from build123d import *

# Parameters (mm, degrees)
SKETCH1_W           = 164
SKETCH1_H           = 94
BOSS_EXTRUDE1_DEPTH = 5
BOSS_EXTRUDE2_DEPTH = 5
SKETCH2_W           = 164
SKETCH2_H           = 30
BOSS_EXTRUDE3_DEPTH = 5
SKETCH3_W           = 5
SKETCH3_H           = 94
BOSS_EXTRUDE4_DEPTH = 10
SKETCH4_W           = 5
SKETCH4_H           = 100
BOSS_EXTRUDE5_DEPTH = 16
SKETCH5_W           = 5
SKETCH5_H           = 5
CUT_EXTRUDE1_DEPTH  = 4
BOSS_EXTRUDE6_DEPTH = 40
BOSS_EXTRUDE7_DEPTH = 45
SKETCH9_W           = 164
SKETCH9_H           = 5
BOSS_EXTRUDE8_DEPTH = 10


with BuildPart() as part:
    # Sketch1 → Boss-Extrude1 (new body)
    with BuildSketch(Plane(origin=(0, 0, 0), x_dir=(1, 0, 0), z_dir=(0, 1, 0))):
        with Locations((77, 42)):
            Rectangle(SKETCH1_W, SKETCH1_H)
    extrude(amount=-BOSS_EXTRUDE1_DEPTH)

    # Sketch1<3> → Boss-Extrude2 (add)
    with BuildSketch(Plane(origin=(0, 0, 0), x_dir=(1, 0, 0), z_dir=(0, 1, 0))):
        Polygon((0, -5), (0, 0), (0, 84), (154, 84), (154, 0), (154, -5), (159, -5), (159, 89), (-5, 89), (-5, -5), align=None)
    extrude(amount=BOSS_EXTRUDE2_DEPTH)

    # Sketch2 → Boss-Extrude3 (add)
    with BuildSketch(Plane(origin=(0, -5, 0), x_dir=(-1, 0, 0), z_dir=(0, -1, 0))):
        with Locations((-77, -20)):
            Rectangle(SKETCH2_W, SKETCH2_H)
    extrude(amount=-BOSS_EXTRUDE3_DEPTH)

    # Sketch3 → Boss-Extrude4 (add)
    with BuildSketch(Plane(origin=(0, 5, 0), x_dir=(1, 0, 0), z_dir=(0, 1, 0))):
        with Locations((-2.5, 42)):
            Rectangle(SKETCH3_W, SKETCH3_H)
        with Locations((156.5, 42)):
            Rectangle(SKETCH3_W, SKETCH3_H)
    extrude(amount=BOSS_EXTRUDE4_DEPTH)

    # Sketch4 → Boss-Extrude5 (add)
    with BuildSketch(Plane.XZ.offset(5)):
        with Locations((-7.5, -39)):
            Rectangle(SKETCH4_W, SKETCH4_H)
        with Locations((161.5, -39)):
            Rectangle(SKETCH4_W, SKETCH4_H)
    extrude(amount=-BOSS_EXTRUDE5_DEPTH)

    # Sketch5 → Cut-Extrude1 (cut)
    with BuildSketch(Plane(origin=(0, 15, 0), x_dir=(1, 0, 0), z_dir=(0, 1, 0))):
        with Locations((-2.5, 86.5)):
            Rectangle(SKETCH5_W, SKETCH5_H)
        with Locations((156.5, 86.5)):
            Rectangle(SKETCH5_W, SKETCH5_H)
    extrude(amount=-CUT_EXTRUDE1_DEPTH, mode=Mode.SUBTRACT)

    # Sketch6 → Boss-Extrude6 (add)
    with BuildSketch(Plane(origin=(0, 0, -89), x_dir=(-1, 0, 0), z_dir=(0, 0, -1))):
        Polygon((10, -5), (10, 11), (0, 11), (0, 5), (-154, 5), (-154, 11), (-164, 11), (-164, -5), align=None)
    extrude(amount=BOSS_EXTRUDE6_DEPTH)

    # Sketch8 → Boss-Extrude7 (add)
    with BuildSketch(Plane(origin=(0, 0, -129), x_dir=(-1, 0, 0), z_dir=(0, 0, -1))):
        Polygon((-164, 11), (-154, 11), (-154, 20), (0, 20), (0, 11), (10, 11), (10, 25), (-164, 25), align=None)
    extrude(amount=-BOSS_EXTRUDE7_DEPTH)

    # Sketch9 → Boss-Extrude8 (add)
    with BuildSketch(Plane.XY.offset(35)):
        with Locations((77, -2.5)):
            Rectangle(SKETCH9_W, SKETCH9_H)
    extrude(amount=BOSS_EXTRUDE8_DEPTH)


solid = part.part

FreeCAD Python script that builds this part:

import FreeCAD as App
import Part
import Sketcher
Q = App.Units.Quantity


def add_polygon(sketch, points):
    """Adds a closed chain of lines whose ends are joined by coincident constraints."""
    first, n = sketch.GeometryCount, len(points)
    for a, b in zip(points, points[1:] + points[:1]):
        sketch.addGeometry(Part.LineSegment(App.Vector(*a, 0), App.Vector(*b, 0)), False)
    for i in range(n):
        sketch.addConstraint(Sketcher.Constraint("Coincident", first + i, 2, first + (i + 1) % n, 1))

doc = App.newDocument("Part")
body = doc.addObject("PartDesign::Body", "Body")

# Sketch on XZ plane
sketch1 = body.newObject("Sketcher::SketchObject", "Sketch")
sketch1.AttachmentSupport = (doc.getObject("XZ_Plane"), [""])
sketch1.MapMode = "FlatFace"
add_polygon(sketch1, [(-5, -89), (-5, 5), (159, 5), (159, -89)])  # lines 0-3
sketch1.addConstraint([
    Sketcher.Constraint("Vertical", 0),
    Sketcher.Constraint("Horizontal", 1),
    Sketcher.Constraint("Vertical", 2),
    Sketcher.Constraint("Horizontal", 3),
    Sketcher.Constraint("DistanceX", 1, 1, 1, 2, Q("164 mm")),
    Sketcher.Constraint("DistanceY", 0, 1, 0, 2, Q("94 mm")),
    Sketcher.Constraint("DistanceX", 0, 2, -1, 1, Q("5 mm")),
    Sketcher.Constraint("DistanceY", -1, 1, 0, 2, Q("5 mm")),
])
pad1 = body.newObject("PartDesign::Pad", "Pad")
pad1.Profile = sketch1
pad1.Length = 5

# Sketch on XZ plane
sketch2 = body.newObject("Sketcher::SketchObject", "Sketch001")
sketch2.AttachmentSupport = (doc.getObject("XZ_Plane"), [""])
sketch2.MapMode = "FlatFace"
add_polygon(sketch2, [(0, 5), (0, -84), (154, -84), (154, 5), (159, 5), (159, -89), (-5, -89), (-5, 5)])  # lines 0-7
sketch2.addConstraint([
    Sketcher.Constraint("Vertical", 0),
    Sketcher.Constraint("Horizontal", 1),
    Sketcher.Constraint("Vertical", 2),
    Sketcher.Constraint("Horizontal", 3),
    Sketcher.Constraint("Vertical", 4),
    Sketcher.Constraint("Horizontal", 5),
    Sketcher.Constraint("Vertical", 6),
    Sketcher.Constraint("Horizontal", 7),
    Sketcher.Constraint("PointOnObject", 0, 2, -2),
    Sketcher.Constraint("Horizontal", 3, 2, 6, 2),
    Sketcher.Constraint("Equal", 3, 7),
    Sketcher.Constraint("DistanceX", 1, 1, 1, 2, Q("154 mm")),
    Sketcher.Constraint("DistanceX", 3, 1, 3, 2, Q("5 mm")),
    Sketcher.Constraint("DistanceY", 0, 2, 0, 1, Q("89 mm")),
    Sketcher.Constraint("DistanceY", 4, 2, 4, 1, Q("94 mm")),
    Sketcher.Constraint("DistanceY", 0, 2, -1, 1, Q("84 mm")),
])
pad2 = body.newObject("PartDesign::Pad", "Pad001")
pad2.Profile = sketch2
pad2.Length = 5
pad2.Reversed = True

# Sketch on XZ plane
sketch3 = body.newObject("Sketcher::SketchObject", "Sketch002")
sketch3.AttachmentSupport = (doc.getObject("XZ_Plane"), [""])
sketch3.MapMode = "FlatFace"
sketch3.AttachmentOffset = App.Placement(App.Vector(0, 0, 5), App.Rotation())
add_polygon(sketch3, [(159, 5), (159, 35), (-5, 35), (-5, 5)])  # lines 0-3
sketch3.addConstraint([
    Sketcher.Constraint("Vertical", 0),
    Sketcher.Constraint("Horizontal", 1),
    Sketcher.Constraint("Vertical", 2),
    Sketcher.Constraint("Horizontal", 3),
    Sketcher.Constraint("DistanceX", 1, 2, 1, 1, Q("164 mm")),
    Sketcher.Constraint("DistanceY", 0, 1, 0, 2, Q("30 mm")),
    Sketcher.Constraint("DistanceX", -1, 1, 0, 2, Q("159 mm")),
    Sketcher.Constraint("DistanceY", -1, 1, 0, 2, Q("35 mm")),
])
pad3 = body.newObject("PartDesign::Pad", "Pad002")
pad3.Profile = sketch3
pad3.Length = 5
pad3.Reversed = True

# Sketch on XZ plane
sketch4 = body.newObject("Sketcher::SketchObject", "Sketch003")
sketch4.AttachmentSupport = (doc.getObject("XZ_Plane"), [""])
sketch4.MapMode = "FlatFace"
sketch4.AttachmentOffset = App.Placement(App.Vector(0, 0, -5), App.Rotation())
add_polygon(sketch4, [(-5, -89), (-5, 5), (0, 5), (0, -89)])  # lines 0-3
add_polygon(sketch4, [(154, -89), (154, 5), (159, 5), (159, -89)])  # lines 4-7
sketch4.addConstraint([
    Sketcher.Constraint("Vertical", 0),
    Sketcher.Constraint("Horizontal", 1),
    Sketcher.Constraint("Vertical", 2),
    Sketcher.Constraint("Horizontal", 3),
    Sketcher.Constraint("Vertical", 4),
    Sketcher.Constraint("Horizontal", 5),
    Sketcher.Constraint("Vertical", 6),
    Sketcher.Constraint("Horizontal", 7),
    Sketcher.Constraint("PointOnObject", 1, 2, -2),
    Sketcher.Constraint("Horizontal", 1, 2, 4, 2),
    Sketcher.Constraint("Horizontal", 3, 2, 6, 2),
    Sketcher.Constraint("Equal", 3, 5),
    Sketcher.Constraint("DistanceX", 1, 1, 1, 2, Q("5 mm")),
    Sketcher.Constraint("DistanceY", 0, 1, 0, 2, Q("94 mm")),
    Sketcher.Constraint("DistanceY", -1, 1, 0, 2, Q("5 mm")),
    Sketcher.Constraint("DistanceX", -1, 1, 4, 2, Q("154 mm")),
])
pad4 = body.newObject("PartDesign::Pad", "Pad003")
pad4.Profile = sketch4
pad4.Length = 10
pad4.Reversed = True

# Sketch on XZ plane
sketch5 = body.newObject("Sketcher::SketchObject", "Sketch004")
sketch5.AttachmentSupport = (doc.getObject("XZ_Plane"), [""])
sketch5.MapMode = "FlatFace"
sketch5.AttachmentOffset = App.Placement(App.Vector(0, 0, 5), App.Rotation())
add_polygon(sketch5, [(-10, 11), (-10, -89), (-5, -89), (-5, 11)])  # lines 0-3
add_polygon(sketch5, [(159, 11), (159, -89), (164, -89), (164, 11)])  # lines 4-7
sketch5.addConstraint([
    Sketcher.Constraint("Vertical", 0),
    Sketcher.Constraint("Horizontal", 1),
    Sketcher.Constraint("Vertical", 2),
    Sketcher.Constraint("Horizontal", 3),
    Sketcher.Constraint("Vertical", 4),
    Sketcher.Constraint("Horizontal", 5),
    Sketcher.Constraint("Vertical", 6),
    Sketcher.Constraint("Horizontal", 7),
    Sketcher.Constraint("Horizontal", 1, 2, 4, 2),
    Sketcher.Constraint("Horizontal", 3, 2, 6, 2),
    Sketcher.Constraint("Equal", 3, 5),
    Sketcher.Constraint("DistanceX", 1, 1, 1, 2, Q("5 mm")),
    Sketcher.Constraint("DistanceY", 0, 2, 0, 1, Q("100 mm")),
    Sketcher.Constraint("DistanceX", 0, 2, -1, 1, Q("10 mm")),
    Sketcher.Constraint("DistanceY", 0, 2, -1, 1, Q("89 mm")),
    Sketcher.Constraint("DistanceX", -1, 1, 4, 2, Q("159 mm")),
])
pad5 = body.newObject("PartDesign::Pad", "Pad004")
pad5.Profile = sketch5
pad5.Length = 16
pad5.Reversed = True

# Sketch on XZ plane
sketch6 = body.newObject("Sketcher::SketchObject", "Sketch005")
sketch6.AttachmentSupport = (doc.getObject("XZ_Plane"), [""])
sketch6.MapMode = "FlatFace"
sketch6.AttachmentOffset = App.Placement(App.Vector(0, 0, -15), App.Rotation())
add_polygon(sketch6, [(-5, -89), (-5, -84), (0, -84), (0, -89)])  # lines 0-3
add_polygon(sketch6, [(154, -89), (154, -84), (159, -84), (159, -89)])  # lines 4-7
sketch6.addConstraint([
    Sketcher.Constraint("Vertical", 0),
    Sketcher.Constraint("Horizontal", 1),
    Sketcher.Constraint("Vertical", 2),
    Sketcher.Constraint("Horizontal", 3),
    Sketcher.Constraint("Vertical", 4),
    Sketcher.Constraint("Horizontal", 5),
    Sketcher.Constraint("Vertical", 6),
    Sketcher.Constraint("Horizontal", 7),
    Sketcher.Constraint("PointOnObject", 1, 2, -2),
    Sketcher.Constraint("Horizontal", 1, 2, 4, 2),
    Sketcher.Constraint("Horizontal", 3, 2, 6, 2),
    Sketcher.Constraint("Equal", 3, 5),
    Sketcher.Constraint("Equal", 7, 0),
    Sketcher.Constraint("DistanceX", 1, 1, 1, 2, Q("5 mm")),
    Sketcher.Constraint("DistanceY", 0, 2, -1, 1, Q("84 mm")),
    Sketcher.Constraint("DistanceX", -1, 1, 4, 2, Q("154 mm")),
])
pocket1 = body.newObject("PartDesign::Pocket", "Pocket")
pocket1.Profile = sketch6
pocket1.Length = 4
pocket1.Reversed = True

# Sketch on XY plane
sketch7 = body.newObject("Sketcher::SketchObject", "Sketch006")
sketch7.AttachmentSupport = (doc.getObject("XY_Plane"), [""])
sketch7.MapMode = "FlatFace"
sketch7.AttachmentOffset = App.Placement(App.Vector(0, 0, -89), App.Rotation())
add_polygon(sketch7, [(-10, -5), (-10, 11), (0, 11), (0, 5), (154, 5), (154, 11), (164, 11), (164, -5)])  # lines 0-7
sketch7.addConstraint([
    Sketcher.Constraint("Vertical", 0),
    Sketcher.Constraint("Horizontal", 1),
    Sketcher.Constraint("Vertical", 2),
    Sketcher.Constraint("Horizontal", 3),
    Sketcher.Constraint("Vertical", 4),
    Sketcher.Constraint("Horizontal", 5),
    Sketcher.Constraint("Vertical", 6),
    Sketcher.Constraint("Horizontal", 7),
    Sketcher.Constraint("PointOnObject", 1, 2, -2),
    Sketcher.Constraint("Horizontal", 1, 2, 4, 2),
    Sketcher.Constraint("Equal", 1, 5),
    Sketcher.Constraint("DistanceX", 1, 1, 1, 2, Q("10 mm")),
    Sketcher.Constraint("DistanceX", 3, 1, 3, 2, Q("154 mm")),
    Sketcher.Constraint("DistanceY", 0, 1, 0, 2, Q("16 mm")),
    Sketcher.Constraint("DistanceY", 2, 2, 2, 1, Q("6 mm")),
    Sketcher.Constraint("DistanceY", -1, 1, 0, 2, Q("11 mm")),
])
pad6 = body.newObject("PartDesign::Pad", "Pad005")
pad6.Profile = sketch7
pad6.Length = 40
pad6.Reversed = True

# Sketch on XY plane
sketch8 = body.newObject("Sketcher::SketchObject", "Sketch007")
sketch8.AttachmentSupport = (doc.getObject("XY_Plane"), [""])
sketch8.MapMode = "FlatFace"
sketch8.AttachmentOffset = App.Placement(App.Vector(0, 0, -129), App.Rotation())
add_polygon(sketch8, [(164, 11), (154, 11), (154, 20), (0, 20), (0, 11), (-10, 11), (-10, 25), (164, 25)])  # lines 0-7
sketch8.addConstraint([
    Sketcher.Constraint("Horizontal", 0),
    Sketcher.Constraint("Vertical", 1),
    Sketcher.Constraint("Horizontal", 2),
    Sketcher.Constraint("Vertical", 3),
    Sketcher.Constraint("Horizontal", 4),
    Sketcher.Constraint("Vertical", 5),
    Sketcher.Constraint("Horizontal", 6),
    Sketcher.Constraint("Vertical", 7),
    Sketcher.Constraint("PointOnObject", 2, 2, -2),
    Sketcher.Constraint("Horizontal", 0, 2, 3, 2),
    Sketcher.Constraint("Equal", 0, 4),
    Sketcher.Constraint("DistanceX", 0, 2, 0, 1, Q("10 mm")),
    Sketcher.Constraint("DistanceX", 2, 2, 2, 1, Q("154 mm")),
    Sketcher.Constraint("DistanceY", 1, 1, 1, 2, Q("9 mm")),
    Sketcher.Constraint("DistanceY", 5, 1, 5, 2, Q("14 mm")),
    Sketcher.Constraint("DistanceY", -1, 1, 0, 2, Q("11 mm")),
])
pad7 = body.newObject("PartDesign::Pad", "Pad006")
pad7.Profile = sketch8
pad7.Length = 45

# Sketch on XY plane
sketch9 = body.newObject("Sketcher::SketchObject", "Sketch008")
sketch9.AttachmentSupport = (doc.getObject("XY_Plane"), [""])
sketch9.MapMode = "FlatFace"
sketch9.AttachmentOffset = App.Placement(App.Vector(0, 0, 35), App.Rotation())
add_polygon(sketch9, [(-5, 0), (-5, -5), (159, -5), (159, 0)])  # lines 0-3
sketch9.addConstraint([
    Sketcher.Constraint("Vertical", 0),
    Sketcher.Constraint("Horizontal", 1),
    Sketcher.Constraint("Vertical", 2),
    Sketcher.Constraint("Horizontal", 3),
    Sketcher.Constraint("PointOnObject", 2, 2, -1),
    Sketcher.Constraint("DistanceX", 1, 1, 1, 2, Q("164 mm")),
    Sketcher.Constraint("DistanceY", 0, 2, 0, 1, Q("5 mm")),
    Sketcher.Constraint("DistanceX", 0, 2, -1, 1, Q("5 mm")),
])
pad8 = body.newObject("PartDesign::Pad", "Pad007")
pad8.Profile = sketch9
pad8.Length = 10

doc.recompute()
